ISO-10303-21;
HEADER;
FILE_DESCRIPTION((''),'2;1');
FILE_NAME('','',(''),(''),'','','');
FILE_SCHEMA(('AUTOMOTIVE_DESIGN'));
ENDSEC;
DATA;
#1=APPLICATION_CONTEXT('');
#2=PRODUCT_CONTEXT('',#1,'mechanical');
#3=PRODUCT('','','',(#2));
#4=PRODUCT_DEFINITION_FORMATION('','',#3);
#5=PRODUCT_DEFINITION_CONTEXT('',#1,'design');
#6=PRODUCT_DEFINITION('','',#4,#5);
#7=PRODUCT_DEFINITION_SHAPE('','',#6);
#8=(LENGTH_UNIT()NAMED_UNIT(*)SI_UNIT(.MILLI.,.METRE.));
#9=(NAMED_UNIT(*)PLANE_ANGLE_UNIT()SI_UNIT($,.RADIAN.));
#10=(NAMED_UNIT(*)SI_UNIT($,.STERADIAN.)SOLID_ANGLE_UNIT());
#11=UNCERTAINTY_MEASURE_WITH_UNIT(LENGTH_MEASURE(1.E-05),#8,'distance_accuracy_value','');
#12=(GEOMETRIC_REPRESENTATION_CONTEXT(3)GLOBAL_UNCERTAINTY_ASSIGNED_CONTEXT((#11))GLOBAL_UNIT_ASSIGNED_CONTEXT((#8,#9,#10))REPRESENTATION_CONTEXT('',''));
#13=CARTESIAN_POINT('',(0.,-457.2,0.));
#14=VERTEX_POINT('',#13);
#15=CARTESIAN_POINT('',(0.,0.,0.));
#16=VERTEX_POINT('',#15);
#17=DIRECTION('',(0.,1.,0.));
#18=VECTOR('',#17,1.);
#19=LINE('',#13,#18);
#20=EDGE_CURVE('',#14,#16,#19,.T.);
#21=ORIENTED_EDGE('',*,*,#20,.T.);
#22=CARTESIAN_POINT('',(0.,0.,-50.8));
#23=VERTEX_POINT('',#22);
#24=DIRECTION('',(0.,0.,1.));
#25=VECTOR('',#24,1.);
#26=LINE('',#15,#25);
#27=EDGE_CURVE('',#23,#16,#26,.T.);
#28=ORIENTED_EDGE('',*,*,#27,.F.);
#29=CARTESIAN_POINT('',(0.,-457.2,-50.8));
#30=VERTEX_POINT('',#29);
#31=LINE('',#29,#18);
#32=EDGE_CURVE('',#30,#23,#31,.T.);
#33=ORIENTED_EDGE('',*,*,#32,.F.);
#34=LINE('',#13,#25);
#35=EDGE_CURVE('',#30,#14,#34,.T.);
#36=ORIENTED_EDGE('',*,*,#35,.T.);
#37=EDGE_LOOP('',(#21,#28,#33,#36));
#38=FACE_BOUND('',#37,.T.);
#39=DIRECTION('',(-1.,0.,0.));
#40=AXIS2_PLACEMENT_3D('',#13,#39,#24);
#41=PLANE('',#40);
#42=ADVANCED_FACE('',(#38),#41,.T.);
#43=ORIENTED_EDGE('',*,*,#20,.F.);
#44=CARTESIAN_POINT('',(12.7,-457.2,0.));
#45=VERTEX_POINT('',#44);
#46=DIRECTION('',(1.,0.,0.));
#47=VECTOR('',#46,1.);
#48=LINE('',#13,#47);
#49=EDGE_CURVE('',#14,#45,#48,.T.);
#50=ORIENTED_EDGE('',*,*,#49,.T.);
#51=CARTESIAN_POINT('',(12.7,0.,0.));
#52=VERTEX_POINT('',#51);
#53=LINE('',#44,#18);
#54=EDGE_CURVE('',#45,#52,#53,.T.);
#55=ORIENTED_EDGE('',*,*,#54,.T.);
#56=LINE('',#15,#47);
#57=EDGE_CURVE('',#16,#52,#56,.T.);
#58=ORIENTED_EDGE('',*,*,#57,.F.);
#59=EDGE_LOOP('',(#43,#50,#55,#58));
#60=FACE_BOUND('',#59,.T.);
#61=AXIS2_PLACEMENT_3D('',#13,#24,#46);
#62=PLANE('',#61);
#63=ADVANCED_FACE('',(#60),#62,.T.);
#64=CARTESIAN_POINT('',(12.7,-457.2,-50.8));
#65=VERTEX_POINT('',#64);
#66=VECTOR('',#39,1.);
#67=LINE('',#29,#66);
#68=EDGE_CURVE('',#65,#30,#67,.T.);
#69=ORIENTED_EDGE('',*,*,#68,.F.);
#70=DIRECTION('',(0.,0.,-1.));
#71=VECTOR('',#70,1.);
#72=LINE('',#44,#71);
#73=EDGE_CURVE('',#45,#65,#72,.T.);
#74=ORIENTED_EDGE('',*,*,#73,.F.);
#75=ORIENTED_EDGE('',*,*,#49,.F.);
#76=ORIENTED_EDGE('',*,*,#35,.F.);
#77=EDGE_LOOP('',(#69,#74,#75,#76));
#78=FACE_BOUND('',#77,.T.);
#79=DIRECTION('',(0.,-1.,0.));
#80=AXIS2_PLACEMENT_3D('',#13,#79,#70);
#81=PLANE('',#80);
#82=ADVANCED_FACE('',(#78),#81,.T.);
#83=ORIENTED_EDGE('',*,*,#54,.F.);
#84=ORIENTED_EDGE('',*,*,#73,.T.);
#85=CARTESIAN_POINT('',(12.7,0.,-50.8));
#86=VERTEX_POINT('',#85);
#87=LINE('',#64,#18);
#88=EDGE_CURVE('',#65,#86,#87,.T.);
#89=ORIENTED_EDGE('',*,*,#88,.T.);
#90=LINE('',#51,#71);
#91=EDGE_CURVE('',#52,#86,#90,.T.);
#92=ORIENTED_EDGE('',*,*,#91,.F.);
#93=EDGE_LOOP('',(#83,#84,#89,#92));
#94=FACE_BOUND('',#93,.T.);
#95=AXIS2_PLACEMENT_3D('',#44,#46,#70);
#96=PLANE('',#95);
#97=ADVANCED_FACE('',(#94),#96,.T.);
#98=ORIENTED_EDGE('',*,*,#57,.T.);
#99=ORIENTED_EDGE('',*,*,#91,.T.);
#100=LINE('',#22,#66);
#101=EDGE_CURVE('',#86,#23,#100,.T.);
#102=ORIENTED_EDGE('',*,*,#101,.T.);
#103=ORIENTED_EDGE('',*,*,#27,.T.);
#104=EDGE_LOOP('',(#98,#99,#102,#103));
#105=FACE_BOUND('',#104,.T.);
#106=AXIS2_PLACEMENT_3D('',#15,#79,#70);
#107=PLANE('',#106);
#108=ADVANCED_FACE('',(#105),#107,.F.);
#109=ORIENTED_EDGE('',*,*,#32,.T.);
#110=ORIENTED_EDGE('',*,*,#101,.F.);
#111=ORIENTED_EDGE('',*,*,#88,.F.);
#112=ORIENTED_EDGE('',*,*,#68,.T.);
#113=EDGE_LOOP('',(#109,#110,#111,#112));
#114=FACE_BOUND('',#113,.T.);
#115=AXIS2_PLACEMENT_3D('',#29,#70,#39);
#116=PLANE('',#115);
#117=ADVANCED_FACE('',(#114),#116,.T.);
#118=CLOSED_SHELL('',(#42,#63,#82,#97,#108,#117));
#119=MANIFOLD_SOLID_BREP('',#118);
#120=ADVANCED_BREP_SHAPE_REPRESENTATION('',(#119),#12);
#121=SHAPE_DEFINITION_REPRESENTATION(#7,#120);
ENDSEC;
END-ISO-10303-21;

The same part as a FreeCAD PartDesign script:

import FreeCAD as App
import Part
import Sketcher
from FreeCAD import Vector
Q = App.Units.Quantity

doc = App.newDocument("Part")
body = doc.addObject("PartDesign::Body", "Body")

# Sketch on XZ plane
sketch1 = body.newObject("Sketcher::SketchObject", "Sketch")
sketch1.AttachmentSupport = (doc.getObject("XZ_Plane"), [""])
sketch1.MapMode = "FlatFace"
sketch1.addGeometry(Part.LineSegment(Vector(0, -50.8, 0), Vector(0, 0, 0)), False)
sketch1.addGeometry(Part.LineSegment(Vector(0, 0, 0), Vector(12.7, 0, 0)), False)
sketch1.addGeometry(Part.LineSegment(Vector(12.7, 0, 0), Vector(12.7, -50.8, 0)), False)
sketch1.addGeometry(Part.LineSegment(Vector(12.7, -50.8, 0), Vector(0, -50.8, 0)), False)
sketch1.addConstraint(Sketcher.Constraint("Coincident", 0, 2, 1, 1))
sketch1.addConstraint(Sketcher.Constraint("Coincident", 1, 2, 2, 1))
sketch1.addConstraint(Sketcher.Constraint("Coincident", 2, 2, 3, 1))
sketch1.addConstraint(Sketcher.Constraint("Coincident", 3, 2, 0, 1))
sketch1.addConstraint(Sketcher.Constraint("Vertical", 0))
sketch1.addConstraint(Sketcher.Constraint("Horizontal", 1))
sketch1.addConstraint(Sketcher.Constraint("Vertical", 2))
sketch1.addConstraint(Sketcher.Constraint("Horizontal", 3))
sketch1.addConstraint(Sketcher.Constraint("Coincident", 0, 2, -1, 1))
sketch1.addConstraint(Sketcher.Constraint("DistanceY", 0, 1, 0, 2, Q("2 in")))
sketch1.addConstraint(Sketcher.Constraint("DistanceX", 1, 1, 1, 2, Q("0.5 in")))
pad1 = body.newObject("PartDesign::Pad", "Pad")
pad1.Profile = sketch1
pad1.Length = Q("18 in")

doc.recompute()
